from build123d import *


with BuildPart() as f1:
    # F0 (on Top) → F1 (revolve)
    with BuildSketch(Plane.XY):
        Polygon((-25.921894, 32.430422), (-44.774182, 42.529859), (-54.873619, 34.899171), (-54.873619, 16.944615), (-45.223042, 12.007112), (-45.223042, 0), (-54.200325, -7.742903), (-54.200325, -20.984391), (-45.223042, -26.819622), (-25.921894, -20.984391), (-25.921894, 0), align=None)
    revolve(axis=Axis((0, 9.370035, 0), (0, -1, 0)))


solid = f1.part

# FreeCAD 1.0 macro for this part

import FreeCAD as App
import Part
import Sketcher

V = App.Vector

doc = App.newDocument("Part")
body = doc.addObject("PartDesign::Body", "Body")

# Sketch on XY plane
sketch1 = body.newObject("Sketcher::SketchObject", "Sketch")
sketch1.AttachmentSupport = (doc.getObject("XY_Plane"), [""])
sketch1.MapMode = "FlatFace"
sketch1.addGeometry(Part.LineSegment(V(-26, 32, 0), V(-45, 43, 0)), False)
sketch1.addGeometry(Part.LineSegment(V(-45, 43, 0), V(-55, 35, 0)), False)
sketch1.addGeometry(Part.LineSegment(V(-55, 35, 0), V(-55, 17, 0)), False)
sketch1.addGeometry(Part.LineSegment(V(-55, 17, 0), V(-45, 12, 0)), False)
sketch1.addGeometry(Part.LineSegment(V(-45, 12, 0), V(-45, 0, 0)), False)
sketch1.addGeometry(Part.LineSegment(V(-45, 0, 0), V(-54, -8, 0)), False)
sketch1.addGeometry(Part.LineSegment(V(-54, -8, 0), V(-54, -21, 0)), False)
sketch1.addGeometry(Part.LineSegment(V(-54, -21, 0), V(-45, -27, 0)), False)
sketch1.addGeometry(Part.LineSegment(V(-45, -27, 0), V(-26, -21, 0)), False)
sketch1.addGeometry(Part.LineSegment(V(-26, -21, 0), V(-26, 32, 0)), False)
sketch1.addConstraint(Sketcher.Constraint("Coincident", 0, 2, 1, 1))
sketch1.addConstraint(Sketcher.Constraint("Coincident", 1, 2, 2, 1))
sketch1.addConstraint(Sketcher.Constraint("Coincident", 2, 2, 3, 1))
sketch1.addConstraint(Sketcher.Constraint("Coincident", 3, 2, 4, 1))
sketch1.addConstraint(Sketcher.Constraint("Coincident", 4, 2, 5, 1))
sketch1.addConstraint(Sketcher.Constraint("Coincident", 5, 2, 6, 1))
sketch1.addConstraint(Sketcher.Constraint("Coincident", 6, 2, 7, 1))
sketch1.addConstraint(Sketcher.Constraint("Coincident", 7, 2, 8, 1))
sketch1.addConstraint(Sketcher.Constraint("Coincident", 8, 2, 9, 1))
sketch1.addConstraint(Sketcher.Constraint("Coincident", 9, 2, 0, 1))
sketch1.addConstraint(Sketcher.Constraint("Vertical", 2))
sketch1.addConstraint(Sketcher.Constraint("Vertical", 4))
sketch1.addConstraint(Sketcher.Constraint("Vertical", 6))
sketch1.addConstraint(Sketcher.Constraint("Vertical", 9))
sketch1.addConstraint(Sketcher.Constraint("PointOnObject", 4, 2, -1))
sketch1.addConstraint(Sketcher.Constraint("Horizontal", 6, 2, 8, 2))
sketch1.addConstraint(Sketcher.Constraint("Vertical", 4, 2, 7, 2))
sketch1.addConstraint(Sketcher.Constraint("DistanceY", 4, 2, 4, 1, 12.007112))
sketch1.addConstraint(Sketcher.Constraint("Distance", 1, 12.658042))
sketch1.addConstraint(Sketcher.Constraint("Distance", 3, 10.840322))
sketch1.addConstraint(Sketcher.Constraint("Distance", 7, 10.707079))
sketch1.addConstraint(Sketcher.Constraint("DistanceY", 2, 2, 2, 1, 17.954556))
sketch1.addConstraint(Sketcher.Constraint("DistanceY", 6, 2, 6, 1, 13.241488))
sketch1.addConstraint(Sketcher.Constraint("DistanceY", 9, 1, 9, 2, 53.414813))
sketch1.addConstraint(Sketcher.Constraint("DistanceY", -1, 1, 0, 2, 42.529859))
sketch1.addConstraint(Sketcher.Constraint("DistanceX", 1, 2, -1, 1, 54.873619))
sketch1.addConstraint(Sketcher.Constraint("DistanceY", -1, 1, 1, 2, 34.899171))
sketch1.addConstraint(Sketcher.Constraint("DistanceY", 6, 2, -1, 1, 20.984391))
sketch1.addConstraint(Sketcher.Constraint("DistanceY", 7, 2, -1, 1, 26.819622))
sketch1.addConstraint(Sketcher.Constraint("DistanceX", 6, 2, 8, 2, 28.278431))
revolution = body.newObject("PartDesign::Revolution", "Revolution")
revolution.Profile = sketch1
revolution.ReferenceAxis = (sketch1, ["V_Axis"])
revolution.Angle = 360

doc.recompute()
